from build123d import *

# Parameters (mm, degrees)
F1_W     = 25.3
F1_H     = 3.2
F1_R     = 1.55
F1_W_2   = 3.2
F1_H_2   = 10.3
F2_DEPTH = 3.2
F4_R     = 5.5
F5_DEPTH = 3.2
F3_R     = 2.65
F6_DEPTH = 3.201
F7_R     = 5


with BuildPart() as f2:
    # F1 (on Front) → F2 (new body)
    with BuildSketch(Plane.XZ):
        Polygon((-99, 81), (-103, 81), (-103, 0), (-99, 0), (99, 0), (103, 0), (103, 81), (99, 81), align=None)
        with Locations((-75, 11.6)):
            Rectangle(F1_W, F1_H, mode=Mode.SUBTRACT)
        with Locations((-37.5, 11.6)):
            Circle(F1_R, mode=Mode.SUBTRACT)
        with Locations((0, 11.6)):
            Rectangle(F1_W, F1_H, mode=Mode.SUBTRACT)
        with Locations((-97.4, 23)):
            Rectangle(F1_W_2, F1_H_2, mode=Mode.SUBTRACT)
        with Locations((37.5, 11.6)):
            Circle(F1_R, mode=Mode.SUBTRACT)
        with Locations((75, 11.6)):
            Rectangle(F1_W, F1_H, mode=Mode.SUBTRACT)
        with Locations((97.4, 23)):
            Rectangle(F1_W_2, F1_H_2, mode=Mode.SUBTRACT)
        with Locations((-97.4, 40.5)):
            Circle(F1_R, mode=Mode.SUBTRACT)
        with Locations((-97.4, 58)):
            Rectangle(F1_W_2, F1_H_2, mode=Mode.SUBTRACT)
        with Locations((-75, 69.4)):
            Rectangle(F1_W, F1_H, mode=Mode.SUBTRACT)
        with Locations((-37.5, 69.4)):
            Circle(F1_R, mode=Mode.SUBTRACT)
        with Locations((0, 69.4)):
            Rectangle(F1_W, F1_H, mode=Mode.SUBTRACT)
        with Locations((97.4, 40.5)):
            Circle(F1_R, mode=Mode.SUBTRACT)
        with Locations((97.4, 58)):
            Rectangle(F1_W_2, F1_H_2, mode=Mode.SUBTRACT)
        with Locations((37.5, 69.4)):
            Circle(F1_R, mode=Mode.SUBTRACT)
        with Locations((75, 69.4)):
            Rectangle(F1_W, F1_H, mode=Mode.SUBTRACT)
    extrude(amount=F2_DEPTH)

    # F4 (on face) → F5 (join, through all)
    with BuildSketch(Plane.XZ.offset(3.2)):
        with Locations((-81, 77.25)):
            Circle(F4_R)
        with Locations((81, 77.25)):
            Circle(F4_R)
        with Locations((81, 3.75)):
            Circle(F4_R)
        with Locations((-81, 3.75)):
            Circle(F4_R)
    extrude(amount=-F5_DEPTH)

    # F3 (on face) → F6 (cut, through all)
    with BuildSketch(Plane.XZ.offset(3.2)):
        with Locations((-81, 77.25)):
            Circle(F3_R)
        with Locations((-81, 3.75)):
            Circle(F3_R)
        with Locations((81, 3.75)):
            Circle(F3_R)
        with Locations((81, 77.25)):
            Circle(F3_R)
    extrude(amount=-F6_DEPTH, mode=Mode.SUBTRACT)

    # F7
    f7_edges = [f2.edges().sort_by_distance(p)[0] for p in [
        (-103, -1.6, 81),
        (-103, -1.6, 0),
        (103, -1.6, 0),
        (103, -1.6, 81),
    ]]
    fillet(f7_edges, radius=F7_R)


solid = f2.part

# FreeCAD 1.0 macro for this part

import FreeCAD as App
import Part
import Sketcher


def edges_at(feature, points):
    """Names of the edges that pass closest to the given points."""
    edges = feature.Shape.Edges
    near = lambda p: min(range(len(edges)), key=lambda i: edges[i].distToShape(Part.Vertex(*p))[0])
    return sorted({f"Edge{near(p) + 1}" for p in points})

doc = App.newDocument("Part")
params = doc.addObject("Spreadsheet::Sheet", "Params")
for row, (alias, value) in enumerate([
    ("sketch1_diameter", "3.1 mm"),
    ("sketch1_width", "206 mm"),
    ("sketch1_height", "81 mm"),
    ("sketch1_width2", "25.3 mm"),
    ("sketch1_width3", "3.2 mm"),
    ("pad1_length", "3.2 mm"),
    ("sketch2_diameter", "11 mm"),
    ("pad2_length", "3.2 mm"),
    ("sketch3_diameter", "5.3 mm"),
    ("fillet_radius", "5 mm"),
], start=1):
    params.set(f"A{row}", alias)
    params.set(f"B{row}", "=" + value)
    params.setAlias(f"B{row}", alias)

body = doc.addObject("PartDesign::Body", "Body")

sketch1 = body.newObject("Sketcher::SketchObject", "Sketch")
sketch1.AttachmentSupport = (doc.getObject("XZ_Plane"), [""])
sketch1.MapMode = "FlatFace"
sketch1.addGeometry(Part.LineSegment(App.Vector(-103, 81, 0), App.Vector(-103, 0, 0)), False)
sketch1.addGeometry(Part.LineSegment(App.Vector(-103, 0, 0), App.Vector(103, 0, 0)), False)
sketch1.addGeometry(Part.LineSegment(App.Vector(103, 0, 0), App.Vector(103, 81, 0)), False)
sketch1.addGeometry(Part.LineSegment(App.Vector(103, 81, 0), App.Vector(-103, 81, 0)), False)
sketch1.addGeometry(Part.LineSegment(App.Vector(-62.4, 10, 0), App.Vector(-87.7, 10, 0)), False)
sketch1.addGeometry(Part.LineSegment(App.Vector(-87.7, 10, 0), App.Vector(-87.7, 13.2, 0)), False)
sketch1.addGeometry(Part.LineSegment(App.Vector(-87.7, 13.2, 0), App.Vector(-62.4, 13.2, 0)), False)
sketch1.addGeometry(Part.LineSegment(App.Vector(-62.4, 13.2, 0), App.Vector(-62.4, 10, 0)), False)
sketch1.addGeometry(Part.LineSegment(App.Vector(-95.8, 17.9, 0), App.Vector(-99, 17.9, 0)), False)
sketch1.addGeometry(Part.LineSegment(App.Vector(-99, 17.9, 0), App.Vector(-99, 28.1, 0)), False)
sketch1.addGeometry(Part.LineSegment(App.Vector(-99, 28.1, 0), App.Vector(-95.8, 28.1, 0)), False)
sketch1.addGeometry(Part.LineSegment(App.Vector(-95.8, 28.1, 0), App.Vector(-95.8, 17.9, 0)), False)
sketch1.addGeometry(Part.Circle(App.Vector(-37.5, 11.6, 0), App.Vector(0, 0, 1), 1.6), False)
sketch1.addGeometry(Part.Circle(App.Vector(-97.4, 40.5, 0), App.Vector(0, 0, 1), 1.6), False)
sketch1.addGeometry(Part.LineSegment(App.Vector(12.7, 10, 0), App.Vector(-12.7, 10, 0)), False)
sketch1.addGeometry(Part.LineSegment(App.Vector(-12.7, 10, 0), App.Vector(-12.7, 13.2, 0)), False)
sketch1.addGeometry(Part.LineSegment(App.Vector(-12.7, 13.2, 0), App.Vector(12.7, 13.2, 0)), False)
sketch1.addGeometry(Part.LineSegment(App.Vector(12.7, 13.2, 0), App.Vector(12.7, 10, 0)), False)
sketch1.addGeometry(Part.Circle(App.Vector(37.5, 11.6, 0), App.Vector(0, 0, 1), 1.6), False)
sketch1.addGeometry(Part.LineSegment(App.Vector(87.7, 10, 0), App.Vector(62.4, 10, 0)), False)
sketch1.addGeometry(Part.LineSegment(App.Vector(62.4, 10, 0), App.Vector(62.4, 13.2, 0)), False)
sketch1.addGeometry(Part.LineSegment(App.Vector(62.4, 13.2, 0), App.Vector(87.7, 13.2, 0)), False)
sketch1.addGeometry(Part.LineSegment(App.Vector(87.7, 13.2, 0), App.Vector(87.7, 10, 0)), False)
sketch1.addGeometry(Part.LineSegment(App.Vector(99, 17.9, 0), App.Vector(95.8, 17.9, 0)), False)
sketch1.addGeometry(Part.LineSegment(App.Vector(95.8, 17.9, 0), App.Vector(95.8, 28.1, 0)), False)
sketch1.addGeometry(Part.LineSegment(App.Vector(95.8, 28.1, 0), App.Vector(99, 28.1, 0)), False)
sketch1.addGeometry(Part.LineSegment(App.Vector(99, 28.1, 0), App.Vector(99, 17.9, 0)), False)
sketch1.addGeometry(Part.Circle(App.Vector(97.4, 40.5, 0), App.Vector(0, 0, 1), 1.6), False)
sketch1.addGeometry(Part.LineSegment(App.Vector(-95.8, 52.9, 0), App.Vector(-99, 52.9, 0)), False)
sketch1.addGeometry(Part.LineSegment(App.Vector(-99, 52.9, 0), App.Vector(-99, 63.1, 0)), False)
sketch1.addGeometry(Part.LineSegment(App.Vector(-99, 63.1, 0), App.Vector(-95.8, 63.1, 0)), False)
sketch1.addGeometry(Part.LineSegment(App.Vector(-95.8, 63.1, 0), App.Vector(-95.8, 52.9, 0)), False)
sketch1.addGeometry(Part.LineSegment(App.Vector(-62.4, 67.8, 0), App.Vector(-87.7, 67.8, 0)), False)
sketch1.addGeometry(Part.LineSegment(App.Vector(-87.7, 67.8, 0), App.Vector(-87.7, 71, 0)), False)
sketch1.addGeometry(Part.LineSegment(App.Vector(-87.7, 71, 0), App.Vector(-62.4, 71, 0)), False)
sketch1.addGeometry(Part.LineSegment(App.Vector(-62.4, 71, 0), App.Vector(-62.4, 67.8, 0)), False)
sketch1.addGeometry(Part.Circle(App.Vector(-37.5, 69.4, 0), App.Vector(0, 0, 1), 1.6), False)
sketch1.addGeometry(Part.LineSegment(App.Vector(12.7, 67.8, 0), App.Vector(-12.7, 67.8, 0)), False)
sketch1.addGeometry(Part.LineSegment(App.Vector(-12.7, 67.8, 0), App.Vector(-12.7, 71, 0)), False)
sketch1.addGeometry(Part.LineSegment(App.Vector(-12.7, 71, 0), App.Vector(12.7, 71, 0)), False)
sketch1.addGeometry(Part.LineSegment(App.Vector(12.7, 71, 0), App.Vector(12.7, 67.8, 0)), False)
sketch1.addGeometry(Part.Circle(App.Vector(37.5, 69.4, 0), App.Vector(0, 0, 1), 1.6), False)
sketch1.addGeometry(Part.LineSegment(App.Vector(99, 52.9, 0), App.Vector(95.8, 52.9, 0)), False)
sketch1.addGeometry(Part.LineSegment(App.Vector(95.8, 52.9, 0), App.Vector(95.8, 63.1, 0)), False)
sketch1.addGeometry(Part.LineSegment(App.Vector(95.8, 63.1, 0), App.Vector(99, 63.1, 0)), False)
sketch1.addGeometry(Part.LineSegment(App.Vector(99, 63.1, 0), App.Vector(99, 52.9, 0)), False)
sketch1.addGeometry(Part.LineSegment(App.Vector(87.7, 67.8, 0), App.Vector(62.4, 67.8, 0)), False)
sketch1.addGeometry(Part.LineSegment(App.Vector(62.4, 67.8, 0), App.Vector(62.4, 71, 0)), False)
sketch1.addGeometry(Part.LineSegment(App.Vector(62.4, 71, 0), App.Vector(87.7, 71, 0)), False)
sketch1.addGeometry(Part.LineSegment(App.Vector(87.7, 71, 0), App.Vector(87.7, 67.8, 0)), False)
sketch1.addConstraint(Sketcher.Constraint("Coincident", 0, 2, 1, 1))
sketch1.addConstraint(Sketcher.Constraint("Coincident", 1, 2, 2, 1))
sketch1.addConstraint(Sketcher.Constraint("Coincident", 2, 2, 3, 1))
sketch1.addConstraint(Sketcher.Constraint("Coincident", 3, 2, 0, 1))
sketch1.addConstraint(Sketcher.Constraint("Coincident", 4, 2, 5, 1))
sketch1.addConstraint(Sketcher.Constraint("Coincident", 5, 2, 6, 1))
sketch1.addConstraint(Sketcher.Constraint("Coincident", 6, 2, 7, 1))
sketch1.addConstraint(Sketcher.Constraint("Coincident", 7, 2, 4, 1))
sketch1.addConstraint(Sketcher.Constraint("Coincident", 8, 2, 9, 1))
sketch1.addConstraint(Sketcher.Constraint("Coincident", 9, 2, 10, 1))
sketch1.addConstraint(Sketcher.Constraint("Coincident", 10, 2, 11, 1))
sketch1.addConstraint(Sketcher.Constraint("Coincident", 11, 2, 8, 1))
sketch1.addConstraint(Sketcher.Constraint("Coincident", 14, 2, 15, 1))
sketch1.addConstraint(Sketcher.Constraint("Coincident", 15, 2, 16, 1))
sketch1.addConstraint(Sketcher.Constraint("Coincident", 16, 2, 17, 1))
sketch1.addConstraint(Sketcher.Constraint("Coincident", 17, 2, 14, 1))
sketch1.addConstraint(Sketcher.Constraint("Coincident", 19, 2, 20, 1))
sketch1.addConstraint(Sketcher.Constraint("Coincident", 20, 2, 21, 1))
sketch1.addConstraint(Sketcher.Constraint("Coincident", 21, 2, 22, 1))
sketch1.addConstraint(Sketcher.Constraint("Coincident", 22, 2, 19, 1))
sketch1.addConstraint(Sketcher.Constraint("Coincident", 23, 2, 24, 1))
sketch1.addConstraint(Sketcher.Constraint("Coincident", 24, 2, 25, 1))
sketch1.addConstraint(Sketcher.Constraint("Coincident", 25, 2, 26, 1))
sketch1.addConstraint(Sketcher.Constraint("Coincident", 26, 2, 23, 1))
sketch1.addConstraint(Sketcher.Constraint("Coincident", 28, 2, 29, 1))
sketch1.addConstraint(Sketcher.Constraint("Coincident", 29, 2, 30, 1))
sketch1.addConstraint(Sketcher.Constraint("Coincident", 30, 2, 31, 1))
sketch1.addConstraint(Sketcher.Constraint("Coincident", 31, 2, 28, 1))
sketch1.addConstraint(Sketcher.Constraint("Coincident", 32, 2, 33, 1))
sketch1.addConstraint(Sketcher.Constraint("Coincident", 33, 2, 34, 1))
sketch1.addConstraint(Sketcher.Constraint("Coincident", 34, 2, 35, 1))
sketch1.addConstraint(Sketcher.Constraint("Coincident", 35, 2, 32, 1))
sketch1.addConstraint(Sketcher.Constraint("Coincident", 37, 2, 38, 1))
sketch1.addConstraint(Sketcher.Constraint("Coincident", 38, 2, 39, 1))
sketch1.addConstraint(Sketcher.Constraint("Coincident", 39, 2, 40, 1))
sketch1.addConstraint(Sketcher.Constraint("Coincident", 40, 2, 37, 1))
sketch1.addConstraint(Sketcher.Constraint("Coincident", 42, 2, 43, 1))
sketch1.addConstraint(Sketcher.Constraint("Coincident", 43, 2, 44, 1))
sketch1.addConstraint(Sketcher.Constraint("Coincident", 44, 2, 45, 1))
sketch1.addConstraint(Sketcher.Constraint("Coincident", 45, 2, 42, 1))
sketch1.addConstraint(Sketcher.Constraint("Coincident", 46, 2, 47, 1))
sketch1.addConstraint(Sketcher.Constraint("Coincident", 47, 2, 48, 1))
sketch1.addConstraint(Sketcher.Constraint("Coincident", 48, 2, 49, 1))
sketch1.addConstraint(Sketcher.Constraint("Coincident", 49, 2, 46, 1))
sketch1.addConstraint(Sketcher.Constraint("Vertical", 0))
sketch1.addConstraint(Sketcher.Constraint("Horizontal", 1))
sketch1.addConstraint(Sketcher.Constraint("Vertical", 2))
sketch1.addConstraint(Sketcher.Constraint("Horizontal", 3))
sketch1.addConstraint(Sketcher.Constraint("Horizontal", 4))
sketch1.addConstraint(Sketcher.Constraint("Vertical", 5))
sketch1.addConstraint(Sketcher.Constraint("Horizontal", 6))
sketch1.addConstraint(Sketcher.Constraint("Vertical", 7))
sketch1.addConstraint(Sketcher.Constraint("Horizontal", 8))
sketch1.addConstraint(Sketcher.Constraint("Vertical", 9))
sketch1.addConstraint(Sketcher.Constraint("Horizontal", 10))
sketch1.addConstraint(Sketcher.Constraint("Vertical", 11))
sketch1.addConstraint(Sketcher.Constraint("Horizontal", 14))
sketch1.addConstraint(Sketcher.Constraint("Vertical", 15))
sketch1.addConstraint(Sketcher.Constraint("Horizontal", 16))
sketch1.addConstraint(Sketcher.Constraint("Vertical", 17))
sketch1.addConstraint(Sketcher.Constraint("Horizontal", 19))
sketch1.addConstraint(Sketcher.Constraint("Vertical", 20))
sketch1.addConstraint(Sketcher.Constraint("Horizontal", 21))
sketch1.addConstraint(Sketcher.Constraint("Vertical", 22))
sketch1.addConstraint(Sketcher.Constraint("Horizontal", 23))
sketch1.addConstraint(Sketcher.Constraint("Vertical", 24))
sketch1.addConstraint(Sketcher.Constraint("Horizontal", 25))
sketch1.addConstraint(Sketcher.Constraint("Vertical", 26))
sketch1.addConstraint(Sketcher.Constraint("Horizontal", 28))
sketch1.addConstraint(Sketcher.Constraint("Vertical", 29))
sketch1.addConstraint(Sketcher.Constraint("Horizontal", 30))
sketch1.addConstraint(Sketcher.Constraint("Vertical", 31))
sketch1.addConstraint(Sketcher.Constraint("Horizontal", 32))
sketch1.addConstraint(Sketcher.Constraint("Vertical", 33))
sketch1.addConstraint(Sketcher.Constraint("Horizontal", 34))
sketch1.addConstraint(Sketcher.Constraint("Vertical", 35))
sketch1.addConstraint(Sketcher.Constraint("Horizontal", 37))
sketch1.addConstraint(Sketcher.Constraint("Vertical", 38))
sketch1.addConstraint(Sketcher.Constraint("Horizontal", 39))
sketch1.addConstraint(Sketcher.Constraint("Vertical", 40))
sketch1.addConstraint(Sketcher.Constraint("Horizontal", 42))
sketch1.addConstraint(Sketcher.Constraint("Vertical", 43))
sketch1.addConstraint(Sketcher.Constraint("Horizontal", 44))
sketch1.addConstraint(Sketcher.Constraint("Vertical", 45))
sketch1.addConstraint(Sketcher.Constraint("Horizontal", 46))
sketch1.addConstraint(Sketcher.Constraint("Vertical", 47))
sketch1.addConstraint(Sketcher.Constraint("Horizontal", 48))
sketch1.addConstraint(Sketcher.Constraint("Vertical", 49))
sketch1.addConstraint(Sketcher.Constraint("Equal", 12, 13))
sketch1.addConstraint(Sketcher.Constraint("Equal", 13, 18))
sketch1.addConstraint(Sketcher.Constraint("Equal", 18, 27))
sketch1.addConstraint(Sketcher.Constraint("Equal", 27, 36))
sketch1.addConstraint(Sketcher.Constraint("Equal", 36, 41))
sketch1.addConstraint(Sketcher.Constraint("Symmetric", 0, 2, 1, 2, -1, 1))
sketch1.addConstraint(Sketcher.Constraint("Symmetric", 12, 3, 18, 3, -2))
sketch1.addConstraint(Sketcher.Constraint("Symmetric", 13, 3, 27, 3, -2))
sketch1.addConstraint(Sketcher.Constraint("Symmetric", 36, 3, 41, 3, -2))
sketch1.addConstraint(Sketcher.Constraint("Symmetric", 7, 2, 19, 2, -2))
sketch1.addConstraint(Sketcher.Constraint("Symmetric", 5, 2, 21, 2, -2))
sketch1.addConstraint(Sketcher.Constraint("Symmetric", 11, 2, 23, 2, -2))
sketch1.addConstraint(Sketcher.Constraint("Symmetric", 9, 2, 25, 2, -2))
sketch1.addConstraint(Sketcher.Constraint("Symmetric", 31, 2, 42, 2, -2))
sketch1.addConstraint(Sketcher.Constraint("Symmetric", 29, 2, 44, 2, -2))
sketch1.addConstraint(Sketcher.Constraint("Symmetric", 35, 2, 46, 2, -2))
sketch1.addConstraint(Sketcher.Constraint("Symmetric", 33, 2, 48, 2, -2))
sketch1.addConstraint(Sketcher.Constraint("Horizontal", 7, 2, 14, 2))
sketch1.addConstraint(Sketcher.Constraint("Horizontal", 6, 2, 15, 2))
sketch1.addConstraint(Sketcher.Constraint("Horizontal", 35, 2, 37, 2))
sketch1.addConstraint(Sketcher.Constraint("Horizontal", 34, 2, 38, 2))
sketch1.addConstraint(Sketcher.Constraint("Vertical", 12, 3, 36, 3))
sketch1.addConstraint(Sketcher.Constraint("Vertical", 9, 2, 28, 2))
sketch1.addConstraint(Sketcher.Constraint("Vertical", 11, 2, 30, 2))
sketch1.addConstraint(Sketcher.Constraint("Vertical", 5, 2, 32, 2))
sketch1.addConstraint(Sketcher.Constraint("Vertical", 7, 2, 34, 2))
sketch1.addConstraint(Sketcher.Constraint("Vertical", 15, 2, 37, 2))
sketch1.addConstraint(Sketcher.Constraint("Vertical", 17, 2, 39, 2))
sketch1.addConstraint(Sketcher.Constraint("Equal", 6, 14))
sketch1.addConstraint(Sketcher.Constraint("Equal", 44, 5))
sketch1.addConstraint(Sketcher.Constraint("Equal", 26, 29))
sketch1.addConstraint(Sketcher.Constraint("Equal", 22, 33))
sketch1.addConstraint(Sketcher.Constraint("Diameter", 12, 3.1))
sketch1.addConstraint(Sketcher.Constraint("DistanceX", 1, 1, 1, 2, 206.0))
sketch1.addConstraint(Sketcher.Constraint("DistanceY", 0, 2, 0, 1, 81.0))
sketch1.addConstraint(Sketcher.Constraint("DistanceX", 4, 2, 4, 1, 25.3))
sketch1.addConstraint(Sketcher.Constraint("DistanceX", 8, 2, 8, 1, 3.2))
sketch1.addConstraint(Sketcher.Constraint("DistanceY", 9, 1, 9, 2, 10.3))
sketch1.addConstraint(Sketcher.Constraint("DistanceY", -1, 1, 4, 2, 10.0))
sketch1.addConstraint(Sketcher.Constraint("DistanceX", 8, 2, -1, 1, 99.0))
sketch1.addConstraint(Sketcher.Constraint("DistanceY", -1, 1, 33, 2, 71.0))
sketch1.addConstraint(Sketcher.Constraint("DistanceX", 12, 3, 18, 3, 75.0))
sketch1.addConstraint(Sketcher.Constraint("DistanceY", 8, 2, 28, 2, 35.0))
sketch1.addConstraint(Sketcher.Constraint("DistanceY", -1, 1, 12, 3, 11.6))
sketch1.addConstraint(Sketcher.Constraint("DistanceX", 13, 3, -1, 1, 97.4))
sketch1.addConstraint(Sketcher.Constraint("DistanceY", -1, 1, 13, 3, 40.5))
sketch1.addConstraint(Sketcher.Constraint("DistanceY", -1, 1, 36, 3, 69.4))
sketch1.addConstraint(Sketcher.Constraint("DistanceX", 7, 2, 14, 2, 49.7))
sketch1.addConstraint(Sketcher.Constraint("DistanceX", 17, 2, 19, 2, 49.7))
sketch1.addConstraint(Sketcher.Constraint("DistanceY", -1, 1, 8, 2, 17.85))
sketch1.setExpression("Constraints[120]", "Params.sketch1_diameter")
sketch1.setExpression("Constraints[121]", "Params.sketch1_width")
sketch1.setExpression("Constraints[122]", "Params.sketch1_height")
sketch1.setExpression("Constraints[123]", "Params.sketch1_width2")
sketch1.setExpression("Constraints[124]", "Params.sketch1_width3")
pad1 = body.newObject("PartDesign::Pad", "Pad")
pad1.Profile = sketch1
pad1.setExpression("Length", "Params.pad1_length")

sketch2 = body.newObject("Sketcher::SketchObject", "Sketch001")
sketch2.AttachmentSupport = (doc.getObject("XZ_Plane"), [""])
sketch2.MapMode = "FlatFace"
sketch2.AttachmentOffset = App.Placement(App.Vector(0, 0, 3.2), App.Rotation())
sketch2.addGeometry(Part.Circle(App.Vector(-81, 77, 0), App.Vector(0, 0, 1), 6), False)
sketch2.addGeometry(Part.Circle(App.Vector(81, 77, 0), App.Vector(0, 0, 1), 6), False)
sketch2.addGeometry(Part.Circle(App.Vector(81, 4, 0), App.Vector(0, 0, 1), 6), False)
sketch2.addGeometry(Part.Circle(App.Vector(-81, 4, 0), App.Vector(0, 0, 1), 6), False)
sketch2.addConstraint(Sketcher.Constraint("Equal", 0, 1))
sketch2.addConstraint(Sketcher.Constraint("Equal", 1, 2))
sketch2.addConstraint(Sketcher.Constraint("Equal", 2, 3))
sketch2.addConstraint(Sketcher.Constraint("Symmetric", 0, 3, 1, 3, -2))
sketch2.addConstraint(Sketcher.Constraint("Symmetric", 2, 3, 3, 3, -2))
sketch2.addConstraint(Sketcher.Constraint("Vertical", 1, 3, 2, 3))
sketch2.addConstraint(Sketcher.Constraint("Diameter", 0, 11.0))
sketch2.addConstraint(Sketcher.Constraint("DistanceX", 0, 3, -1, 1, 81.0))
sketch2.addConstraint(Sketcher.Constraint("DistanceY", 2, 3, 1, 3, 73.5))
sketch2.addConstraint(Sketcher.Constraint("DistanceY", -1, 1, 0, 3, 77.25))
sketch2.setExpression("Constraints[6]", "Params.sketch2_diameter")
pad2 = body.newObject("PartDesign::Pad", "Pad001")
pad2.Profile = sketch2
pad2.setExpression("Length", "Params.pad2_length")
pad2.Reversed = True

sketch3 = body.newObject("Sketcher::SketchObject", "Sketch002")
sketch3.AttachmentSupport = (doc.getObject("XZ_Plane"), [""])
sketch3.MapMode = "FlatFace"
sketch3.AttachmentOffset = App.Placement(App.Vector(0, 0, 3.2), App.Rotation())
sketch3.addGeometry(Part.Circle(App.Vector(-81, 77.2, 0), App.Vector(0, 0, 1), 2.6), False)
sketch3.addGeometry(Part.Circle(App.Vector(-81, 3.8, 0), App.Vector(0, 0, 1), 2.6), False)
sketch3.addGeometry(Part.Circle(App.Vector(81, 3.8, 0), App.Vector(0, 0, 1), 2.6), False)
sketch3.addGeometry(Part.Circle(App.Vector(81, 77.2, 0), App.Vector(0, 0, 1), 2.6), False)
sketch3.addConstraint(Sketcher.Constraint("Equal", 0, 1))
sketch3.addConstraint(Sketcher.Constraint("Equal", 1, 2))
sketch3.addConstraint(Sketcher.Constraint("Equal", 2, 3))
sketch3.addConstraint(Sketcher.Constraint("Symmetric", 1, 3, 2, 3, -2))
sketch3.addConstraint(Sketcher.Constraint("Symmetric", 0, 3, 3, 3, -2))
sketch3.addConstraint(Sketcher.Constraint("Vertical", 0, 3, 1, 3))
sketch3.addConstraint(Sketcher.Constraint("Diameter", 0, 5.3))
sketch3.addConstraint(Sketcher.Constraint("DistanceX", 0, 3, -1, 1, 81.0))
sketch3.addConstraint(Sketcher.Constraint("DistanceY", 1, 3, 0, 3, 73.5))
sketch3.addConstraint(Sketcher.Constraint("DistanceY", -1, 1, 0, 3, 77.25))
sketch3.setExpression("Constraints[6]", "Params.sketch3_diameter")
pocket1 = body.newObject("PartDesign::Pocket", "Pocket")
pocket1.Profile = sketch3
pocket1.Type = "ThroughAll"
doc.recompute()

fillet = body.newObject("PartDesign::Fillet", "Fillet")
fillet.Base = (pocket1, edges_at(pocket1, [
    (-103, -1.6, 81),
    (-103, -1.6, 0),
    (103, -1.6, 0),
    (103, -1.6, 81),
]))
fillet.setExpression("Radius", "Params.fillet_radius")

doc.recompute()
